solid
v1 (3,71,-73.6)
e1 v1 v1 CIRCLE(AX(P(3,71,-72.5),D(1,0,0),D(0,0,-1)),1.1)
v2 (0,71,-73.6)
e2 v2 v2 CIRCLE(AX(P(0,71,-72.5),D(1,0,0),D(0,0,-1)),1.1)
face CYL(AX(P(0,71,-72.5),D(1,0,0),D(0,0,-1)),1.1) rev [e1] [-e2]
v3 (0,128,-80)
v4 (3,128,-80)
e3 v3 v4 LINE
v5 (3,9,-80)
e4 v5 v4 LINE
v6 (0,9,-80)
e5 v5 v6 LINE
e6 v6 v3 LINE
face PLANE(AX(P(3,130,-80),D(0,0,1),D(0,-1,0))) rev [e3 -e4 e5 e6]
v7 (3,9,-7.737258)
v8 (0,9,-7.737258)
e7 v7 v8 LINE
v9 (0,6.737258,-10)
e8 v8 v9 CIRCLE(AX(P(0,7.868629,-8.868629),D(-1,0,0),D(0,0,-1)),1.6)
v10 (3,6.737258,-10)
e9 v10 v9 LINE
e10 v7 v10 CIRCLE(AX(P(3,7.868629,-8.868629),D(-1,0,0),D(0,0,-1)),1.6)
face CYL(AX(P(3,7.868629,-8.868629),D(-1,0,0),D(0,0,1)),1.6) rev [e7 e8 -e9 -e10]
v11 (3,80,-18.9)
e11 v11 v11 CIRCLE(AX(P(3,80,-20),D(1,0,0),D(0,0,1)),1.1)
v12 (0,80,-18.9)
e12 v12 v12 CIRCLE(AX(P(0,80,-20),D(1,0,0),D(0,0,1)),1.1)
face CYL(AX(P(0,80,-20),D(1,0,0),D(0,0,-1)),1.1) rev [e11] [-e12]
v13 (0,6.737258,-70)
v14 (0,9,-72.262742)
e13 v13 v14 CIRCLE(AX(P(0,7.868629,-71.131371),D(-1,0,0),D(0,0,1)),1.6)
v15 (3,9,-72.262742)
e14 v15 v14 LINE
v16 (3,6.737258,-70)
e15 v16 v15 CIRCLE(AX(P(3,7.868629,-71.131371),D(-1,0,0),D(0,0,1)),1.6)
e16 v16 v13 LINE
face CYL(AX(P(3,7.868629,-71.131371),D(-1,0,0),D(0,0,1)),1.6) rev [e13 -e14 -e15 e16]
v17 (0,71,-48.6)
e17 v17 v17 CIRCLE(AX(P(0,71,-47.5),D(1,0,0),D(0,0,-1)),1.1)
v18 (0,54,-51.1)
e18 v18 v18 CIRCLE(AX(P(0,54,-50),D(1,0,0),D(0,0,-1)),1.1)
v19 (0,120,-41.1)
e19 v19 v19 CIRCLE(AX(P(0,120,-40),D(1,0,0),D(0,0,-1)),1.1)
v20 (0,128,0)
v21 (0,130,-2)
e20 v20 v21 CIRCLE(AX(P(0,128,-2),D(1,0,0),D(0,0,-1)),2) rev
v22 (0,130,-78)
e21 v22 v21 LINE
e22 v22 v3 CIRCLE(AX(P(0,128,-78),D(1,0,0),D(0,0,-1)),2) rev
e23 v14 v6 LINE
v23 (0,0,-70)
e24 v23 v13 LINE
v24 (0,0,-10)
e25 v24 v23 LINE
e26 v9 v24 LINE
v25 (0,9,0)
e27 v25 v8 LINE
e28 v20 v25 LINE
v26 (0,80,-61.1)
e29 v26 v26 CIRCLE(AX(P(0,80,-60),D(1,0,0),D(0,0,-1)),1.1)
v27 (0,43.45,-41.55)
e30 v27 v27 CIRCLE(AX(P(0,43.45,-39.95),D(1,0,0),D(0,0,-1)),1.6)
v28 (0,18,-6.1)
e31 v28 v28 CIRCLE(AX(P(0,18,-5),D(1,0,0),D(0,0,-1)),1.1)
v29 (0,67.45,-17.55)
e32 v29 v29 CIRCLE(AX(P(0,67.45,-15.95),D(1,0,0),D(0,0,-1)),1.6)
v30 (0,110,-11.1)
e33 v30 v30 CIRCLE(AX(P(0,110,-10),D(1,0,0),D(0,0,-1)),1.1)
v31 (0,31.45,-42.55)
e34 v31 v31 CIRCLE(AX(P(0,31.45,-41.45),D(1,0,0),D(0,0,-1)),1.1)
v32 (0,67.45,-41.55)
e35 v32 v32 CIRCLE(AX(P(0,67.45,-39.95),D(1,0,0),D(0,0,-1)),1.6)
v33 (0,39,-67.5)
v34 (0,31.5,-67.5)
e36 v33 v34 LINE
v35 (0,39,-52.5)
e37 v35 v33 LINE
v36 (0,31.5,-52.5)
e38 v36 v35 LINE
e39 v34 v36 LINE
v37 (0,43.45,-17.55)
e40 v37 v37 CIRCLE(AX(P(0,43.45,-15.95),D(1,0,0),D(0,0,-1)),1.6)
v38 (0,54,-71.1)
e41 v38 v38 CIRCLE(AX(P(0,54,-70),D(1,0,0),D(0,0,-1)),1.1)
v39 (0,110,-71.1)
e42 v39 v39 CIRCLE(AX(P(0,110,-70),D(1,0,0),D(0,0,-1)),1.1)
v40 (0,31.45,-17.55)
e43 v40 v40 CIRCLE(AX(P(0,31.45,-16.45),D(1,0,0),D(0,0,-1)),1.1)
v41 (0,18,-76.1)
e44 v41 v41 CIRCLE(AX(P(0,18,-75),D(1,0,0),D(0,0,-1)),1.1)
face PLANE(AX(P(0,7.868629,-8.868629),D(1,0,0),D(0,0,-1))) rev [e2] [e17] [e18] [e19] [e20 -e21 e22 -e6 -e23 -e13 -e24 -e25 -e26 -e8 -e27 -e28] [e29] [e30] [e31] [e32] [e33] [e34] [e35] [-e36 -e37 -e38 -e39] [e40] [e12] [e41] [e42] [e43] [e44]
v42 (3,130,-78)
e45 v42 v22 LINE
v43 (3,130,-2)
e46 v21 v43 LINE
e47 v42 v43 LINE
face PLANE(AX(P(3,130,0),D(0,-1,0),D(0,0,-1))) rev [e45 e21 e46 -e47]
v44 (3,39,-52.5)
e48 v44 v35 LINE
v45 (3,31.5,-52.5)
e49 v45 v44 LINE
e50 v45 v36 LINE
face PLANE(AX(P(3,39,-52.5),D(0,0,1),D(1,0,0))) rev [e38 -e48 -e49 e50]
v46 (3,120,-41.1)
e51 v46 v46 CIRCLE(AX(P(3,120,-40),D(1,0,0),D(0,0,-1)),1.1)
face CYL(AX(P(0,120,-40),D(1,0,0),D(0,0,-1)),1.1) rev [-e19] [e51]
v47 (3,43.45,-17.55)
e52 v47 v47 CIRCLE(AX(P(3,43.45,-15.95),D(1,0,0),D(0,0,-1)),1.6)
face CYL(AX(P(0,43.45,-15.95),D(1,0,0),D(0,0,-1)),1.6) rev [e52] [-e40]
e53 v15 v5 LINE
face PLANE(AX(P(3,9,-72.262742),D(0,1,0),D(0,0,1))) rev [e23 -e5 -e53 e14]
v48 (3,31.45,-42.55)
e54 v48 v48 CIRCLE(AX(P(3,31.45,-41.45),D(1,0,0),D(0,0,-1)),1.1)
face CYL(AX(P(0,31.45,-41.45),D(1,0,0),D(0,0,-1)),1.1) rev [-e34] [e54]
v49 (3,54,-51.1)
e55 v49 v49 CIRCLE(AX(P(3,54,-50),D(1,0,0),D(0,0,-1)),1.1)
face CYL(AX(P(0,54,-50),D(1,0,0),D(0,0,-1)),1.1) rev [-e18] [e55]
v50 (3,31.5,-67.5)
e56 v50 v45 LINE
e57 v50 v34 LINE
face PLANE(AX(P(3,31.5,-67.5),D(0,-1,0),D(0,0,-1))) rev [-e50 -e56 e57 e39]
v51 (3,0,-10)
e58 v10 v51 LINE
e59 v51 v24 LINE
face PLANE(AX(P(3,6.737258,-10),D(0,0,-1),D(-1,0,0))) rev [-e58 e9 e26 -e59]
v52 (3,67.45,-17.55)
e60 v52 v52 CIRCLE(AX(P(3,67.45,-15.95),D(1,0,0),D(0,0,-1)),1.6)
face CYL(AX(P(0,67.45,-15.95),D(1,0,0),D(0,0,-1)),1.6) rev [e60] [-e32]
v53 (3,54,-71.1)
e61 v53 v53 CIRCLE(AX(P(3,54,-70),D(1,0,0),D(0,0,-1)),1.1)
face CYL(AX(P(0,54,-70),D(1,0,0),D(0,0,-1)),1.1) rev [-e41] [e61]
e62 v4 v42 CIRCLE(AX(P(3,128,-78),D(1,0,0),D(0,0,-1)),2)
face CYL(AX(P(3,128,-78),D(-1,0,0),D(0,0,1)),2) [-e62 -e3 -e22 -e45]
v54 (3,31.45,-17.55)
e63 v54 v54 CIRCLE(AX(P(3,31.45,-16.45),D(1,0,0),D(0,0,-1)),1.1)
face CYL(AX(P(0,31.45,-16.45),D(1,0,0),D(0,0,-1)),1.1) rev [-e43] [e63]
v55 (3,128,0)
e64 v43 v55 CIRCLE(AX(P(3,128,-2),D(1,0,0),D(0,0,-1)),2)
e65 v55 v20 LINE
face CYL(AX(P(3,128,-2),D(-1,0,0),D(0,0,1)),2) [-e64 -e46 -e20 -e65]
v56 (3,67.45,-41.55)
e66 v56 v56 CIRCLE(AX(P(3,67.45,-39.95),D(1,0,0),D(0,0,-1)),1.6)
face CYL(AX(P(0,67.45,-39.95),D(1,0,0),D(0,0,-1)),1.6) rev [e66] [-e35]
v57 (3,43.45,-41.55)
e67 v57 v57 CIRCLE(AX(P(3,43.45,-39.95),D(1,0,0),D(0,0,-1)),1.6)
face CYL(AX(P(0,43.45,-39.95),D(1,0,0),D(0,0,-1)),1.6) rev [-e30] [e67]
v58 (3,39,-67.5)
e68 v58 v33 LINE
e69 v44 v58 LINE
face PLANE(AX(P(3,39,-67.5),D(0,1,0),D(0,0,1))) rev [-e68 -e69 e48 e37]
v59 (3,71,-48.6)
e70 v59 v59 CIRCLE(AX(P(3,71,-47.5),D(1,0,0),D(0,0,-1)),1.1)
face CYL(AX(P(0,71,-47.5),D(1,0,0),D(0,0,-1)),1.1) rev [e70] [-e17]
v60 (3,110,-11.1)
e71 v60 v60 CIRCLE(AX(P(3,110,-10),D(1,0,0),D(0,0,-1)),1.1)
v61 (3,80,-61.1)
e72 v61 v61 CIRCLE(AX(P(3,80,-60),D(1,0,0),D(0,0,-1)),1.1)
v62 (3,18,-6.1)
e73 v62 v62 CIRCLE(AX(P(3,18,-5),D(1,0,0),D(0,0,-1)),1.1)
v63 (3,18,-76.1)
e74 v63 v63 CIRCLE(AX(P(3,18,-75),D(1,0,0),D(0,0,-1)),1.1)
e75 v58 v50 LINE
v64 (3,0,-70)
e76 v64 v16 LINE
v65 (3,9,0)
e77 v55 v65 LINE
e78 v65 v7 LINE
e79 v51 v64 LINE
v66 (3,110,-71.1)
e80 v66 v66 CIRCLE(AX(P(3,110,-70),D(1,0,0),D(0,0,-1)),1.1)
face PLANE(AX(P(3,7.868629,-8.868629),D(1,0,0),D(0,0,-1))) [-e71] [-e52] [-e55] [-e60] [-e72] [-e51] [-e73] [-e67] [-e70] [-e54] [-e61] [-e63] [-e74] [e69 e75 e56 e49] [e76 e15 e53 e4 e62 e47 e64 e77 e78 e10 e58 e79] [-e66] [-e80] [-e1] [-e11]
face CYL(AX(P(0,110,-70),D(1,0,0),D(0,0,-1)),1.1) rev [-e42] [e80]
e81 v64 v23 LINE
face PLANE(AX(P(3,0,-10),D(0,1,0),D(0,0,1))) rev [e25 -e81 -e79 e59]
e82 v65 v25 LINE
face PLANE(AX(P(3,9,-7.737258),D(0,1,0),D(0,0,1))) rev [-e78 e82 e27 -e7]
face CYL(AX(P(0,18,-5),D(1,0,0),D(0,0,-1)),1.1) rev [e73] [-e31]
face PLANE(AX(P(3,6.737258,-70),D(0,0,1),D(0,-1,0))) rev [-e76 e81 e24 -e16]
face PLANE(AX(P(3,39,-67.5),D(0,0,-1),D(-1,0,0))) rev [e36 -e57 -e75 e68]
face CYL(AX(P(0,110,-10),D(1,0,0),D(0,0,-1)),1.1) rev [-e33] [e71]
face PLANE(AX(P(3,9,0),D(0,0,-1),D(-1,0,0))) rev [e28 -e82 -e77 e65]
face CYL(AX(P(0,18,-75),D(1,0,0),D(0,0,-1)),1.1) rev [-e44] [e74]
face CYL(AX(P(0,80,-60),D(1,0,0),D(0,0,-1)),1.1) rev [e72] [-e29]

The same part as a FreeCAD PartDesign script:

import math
import FreeCAD as App
import Part
import Sketcher

V = App.Vector


def edges_at(feature, points):
    """Names of the edges that pass closest to the given points."""
    edges = feature.Shape.Edges
    near = lambda p: min(range(len(edges)), key=lambda i: edges[i].distToShape(Part.Vertex(*p))[0])
    return sorted({f"Edge{near(p) + 1}" for p in points})

doc = App.newDocument("Part")
params = doc.addObject("Spreadsheet::Sheet", "Params")
for row, (alias, value) in enumerate([
    ("sketch1_radius", "1.6 mm"),
    ("sketch1_width", "121 mm"),
    ("sketch1_height", "60 mm"),
    ("sketch1_height2", "80 mm"),
    ("pad1_length", "3 mm"),
    ("sketch2_diameter", "2.2 mm"),
    ("sketch2_diameter2", "3.2 mm"),
    ("sketch3_height", "15 mm"),
    ("sketch3_width", "7.5 mm"),
    ("sketch4_diameter", "2.2 mm"),
    ("fillet_radius", "2 mm"),
    ("sketch5_diameter", "2.2 mm"),
], start=1):
    params.set(f"A{row}", alias)
    params.set(f"B{row}", "=" + value)
    params.setAlias(f"B{row}", alias)

body = doc.addObject("PartDesign::Body", "Body")

# Sketch on YZ plane
sketch1 = body.newObject("Sketcher::SketchObject", "Sketch")
sketch1.AttachmentSupport = (doc.getObject("YZ_Plane"), [""])
sketch1.MapMode = "FlatFace"
sketch1.addGeometry([
    Part.LineSegment(V(6.7, -10, 0), V(0, -10, 0)),  # 0
    Part.LineSegment(V(0, -10, 0), V(0, -70, 0)),  # 1
    Part.LineSegment(V(0, -70, 0), V(6.7, -70, 0)),  # 2
    Part.ArcOfCircle(Part.Circle(V(7.9, -71.1, 0), V(0, 0, 1), 1.6), math.radians(-45), math.radians(135)),  # 3
    Part.LineSegment(V(9, -72.3, 0), V(9, -80, 0)),  # 4
    Part.LineSegment(V(9, -80, 0), V(130, -80, 0)),  # 5
    Part.LineSegment(V(130, -80, 0), V(130, 0, 0)),  # 6
    Part.LineSegment(V(130, 0, 0), V(9, 0, 0)),  # 7
    Part.LineSegment(V(9, 0, 0), V(9, -7.7, 0)),  # 8
    Part.ArcOfCircle(Part.Circle(V(7.9, -8.9, 0), V(0, 0, 1), 1.6), math.radians(-135), math.radians(45)),  # 9
], False)
sketch1.addConstraint([
    Sketcher.Constraint("Coincident", 0, 2, 1, 1),
    Sketcher.Constraint("Coincident", 1, 2, 2, 1),
    Sketcher.Constraint("Coincident", 2, 2, 3, 2),
    Sketcher.Constraint("Coincident", 3, 1, 4, 1),
    Sketcher.Constraint("Coincident", 4, 2, 5, 1),
    Sketcher.Constraint("Coincident", 5, 2, 6, 1),
    Sketcher.Constraint("Coincident", 6, 2, 7, 1),
    Sketcher.Constraint("Coincident", 7, 2, 8, 1),
    Sketcher.Constraint("Coincident", 8, 2, 9, 2),
    Sketcher.Constraint("Coincident", 9, 1, 0, 1),
    Sketcher.Constraint("Horizontal", 0),
    Sketcher.Constraint("Vertical", 1),
    Sketcher.Constraint("Horizontal", 2),
    Sketcher.Constraint("Vertical", 4),
    Sketcher.Constraint("Horizontal", 5),
    Sketcher.Constraint("Vertical", 6),
    Sketcher.Constraint("Horizontal", 7),
    Sketcher.Constraint("Vertical", 8),
    Sketcher.Constraint("Equal", 3, 9),
    Sketcher.Constraint("PointOnObject", 0, 2, -2),
    Sketcher.Constraint("PointOnObject", 6, 2, -1),
    Sketcher.Constraint("Vertical", 3, 3, 9, 3),
    Sketcher.Constraint("Vertical", 4, 2, 7, 2),
    Sketcher.Constraint("Vertical", 2, 2, 9, 1),
    Sketcher.Constraint("Equal", 4, 8),
    Sketcher.Constraint("Radius", 3, 1.6),
    Sketcher.Constraint("DistanceX", 5, 1, 5, 2, 121.0),
    Sketcher.Constraint("DistanceY", 1, 2, 1, 1, 60.0),
    Sketcher.Constraint("DistanceY", 6, 1, 6, 2, 80.0),
    Sketcher.Constraint("DistanceX", -1, 1, 3, 1, 9.0),
    Sketcher.Constraint("DistanceX", 0, 2, 0, 1, 6.737258),
    Sketcher.Constraint("DistanceX", -1, 1, 3, 3, 7.868629),
])
sketch1.setExpression("Constraints[25]", "Params.sketch1_radius")
sketch1.setExpression("Constraints[26]", "Params.sketch1_width")
sketch1.setExpression("Constraints[27]", "Params.sketch1_height")
sketch1.setExpression("Constraints[28]", "Params.sketch1_height2")
pad1 = body.newObject("PartDesign::Pad", "Pad")
pad1.Profile = sketch1
pad1.setExpression("Length", "Params.pad1_length")

# Sketch on YZ plane
sketch2 = body.newObject("Sketcher::SketchObject", "Sketch001")
sketch2.AttachmentSupport = (doc.getObject("YZ_Plane"), [""])
sketch2.MapMode = "FlatFace"
sketch2.AttachmentOffset = App.Placement(V(0, 0, 3), App.Rotation())
sketch2.addGeometry([
    Part.Circle(V(80, -60, 0), V(0, 0, 1), 1.1),  # 0
    Part.Circle(V(110, -10, 0), V(0, 0, 1), 1.1),  # 1
    Part.Circle(V(80, -20, 0), V(0, 0, 1), 1.1),  # 2
    Part.Circle(V(110, -70, 0), V(0, 0, 1), 1.1),  # 3
    Part.Circle(V(67.5, -15.9, 0), V(0, 0, 1), 1.6),  # 4
    Part.Circle(V(43.5, -15.9, 0), V(0, 0, 1), 1.6),  # 5
    Part.Circle(V(43.5, -40, 0), V(0, 0, 1), 1.6),  # 6
    Part.Circle(V(67.5, -40, 0), V(0, 0, 1), 1.6),  # 7
    Part.Circle(V(120, -40, 0), V(0, 0, 1), 1.1),  # 8
    Part.Circle(V(54, -70, 0), V(0, 0, 1), 1.1),  # 9
    Part.Circle(V(54, -50, 0), V(0, 0, 1), 1.1),  # 10
], False)
sketch2.addConstraint([
    Sketcher.Constraint("Equal", 0, 1),
    Sketcher.Constraint("Equal", 1, 2),
    Sketcher.Constraint("Equal", 2, 3),
    Sketcher.Constraint("Equal", 4, 5),
    Sketcher.Constraint("Equal", 5, 6),
    Sketcher.Constraint("Equal", 6, 7),
    Sketcher.Constraint("Equal", 3, 8),
    Sketcher.Constraint("Equal", 8, 9),
    Sketcher.Constraint("Equal", 9, 10),
    Sketcher.Constraint("Horizontal", 4, 3, 5, 3),
    Sketcher.Constraint("Horizontal", 6, 3, 7, 3),
    Sketcher.Constraint("Horizontal", 3, 3, 9, 3),
    Sketcher.Constraint("Vertical", 0, 3, 2, 3),
    Sketcher.Constraint("Vertical", 1, 3, 3, 3),
    Sketcher.Constraint("Vertical", 5, 3, 6, 3),
    Sketcher.Constraint("Vertical", 4, 3, 7, 3),
    Sketcher.Constraint("Vertical", 9, 3, 10, 3),
    Sketcher.Constraint("Diameter", 0, 2.2),
    Sketcher.Constraint("Diameter", 4, 3.2),
    Sketcher.Constraint("DistanceX", -1, 1, 0, 3, 80.0),
    Sketcher.Constraint("DistanceY", 0, 3, -1, 1, 60.0),
    Sketcher.Constraint("DistanceX", -1, 1, 1, 3, 110.0),
    Sketcher.Constraint("DistanceY", 1, 3, -1, 1, 10.0),
    Sketcher.Constraint("DistanceY", 2, 3, -1, 1, 20.0),
    Sketcher.Constraint("DistanceY", 3, 3, -1, 1, 70.0),
    Sketcher.Constraint("DistanceX", -1, 1, 8, 3, 120.0),
    Sketcher.Constraint("DistanceY", 8, 3, -1, 1, 40.0),
    Sketcher.Constraint("DistanceX", -1, 1, 9, 3, 54.0),
    Sketcher.Constraint("DistanceY", 10, 3, -1, 1, 50.0),
    Sketcher.Constraint("DistanceX", 5, 3, 4, 3, 24.0),
    Sketcher.Constraint("DistanceY", 6, 3, 5, 3, 24.0),
    Sketcher.Constraint("DistanceX", -1, 1, 4, 3, 67.45),
    Sketcher.Constraint("DistanceY", 4, 3, -1, 1, 15.95),
])
sketch2.setExpression("Constraints[17]", "Params.sketch2_diameter")
sketch2.setExpression("Constraints[18]", "Params.sketch2_diameter2")
pocket1 = body.newObject("PartDesign::Pocket", "Pocket")
pocket1.Profile = sketch2
pocket1.Type = "ThroughAll"

# Sketch on YZ plane
sketch3 = body.newObject("Sketcher::SketchObject", "Sketch002")
sketch3.AttachmentSupport = (doc.getObject("YZ_Plane"), [""])
sketch3.MapMode = "FlatFace"
sketch3.addGeometry([
    Part.LineSegment(V(39, -68, 0), V(32, -68, 0)),
    Part.LineSegment(V(32, -68, 0), V(32, -52, 0)),
    Part.LineSegment(V(32, -52, 0), V(39, -52, 0)),
    Part.LineSegment(V(39, -52, 0), V(39, -68, 0)),
], False)
sketch3.addConstraint([
    Sketcher.Constraint("Coincident", 0, 2, 1, 1),
    Sketcher.Constraint("Coincident", 1, 2, 2, 1),
    Sketcher.Constraint("Coincident", 2, 2, 3, 1),
    Sketcher.Constraint("Coincident", 3, 2, 0, 1),
    Sketcher.Constraint("Horizontal", 0),
    Sketcher.Constraint("Vertical", 1),
    Sketcher.Constraint("Horizontal", 2),
    Sketcher.Constraint("Vertical", 3),
    Sketcher.Constraint("DistanceY", 1, 1, 1, 2, 15.0),
    Sketcher.Constraint("DistanceX", 0, 2, 0, 1, 7.5),
    Sketcher.Constraint("DistanceX", -1, 1, 2, 2, 39.0),
    Sketcher.Constraint("DistanceY", 0, 2, -1, 1, 67.5),
])
sketch3.setExpression("Constraints[8]", "Params.sketch3_height")
sketch3.setExpression("Constraints[9]", "Params.sketch3_width")
pocket2 = body.newObject("PartDesign::Pocket", "Pocket001")
pocket2.Profile = sketch3
pocket2.Type = "ThroughAll"
pocket2.Reversed = True

# Sketch on YZ plane
sketch4 = body.newObject("Sketcher::SketchObject", "Sketch003")
sketch4.AttachmentSupport = (doc.getObject("YZ_Plane"), [""])
sketch4.MapMode = "FlatFace"
sketch4.AttachmentOffset = App.Placement(V(0, 0, 3), App.Rotation())
sketch4.addGeometry([
    Part.Circle(V(18, -75, 0), V(0, 0, 1), 1.1),
    Part.Circle(V(18, -5, 0), V(0, 0, 1), 1.1),
], False)
sketch4.addConstraint([
    Sketcher.Constraint("Equal", 0, 1),
    Sketcher.Constraint("Vertical", 0, 3, 1, 3),
    Sketcher.Constraint("Diameter", 0, 2.2),
    Sketcher.Constraint("DistanceX", -1, 1, 0, 3, 18.0),
    Sketcher.Constraint("DistanceY", 0, 3, -1, 1, 75.0),
    Sketcher.Constraint("DistanceY", 1, 3, -1, 1, 5.0),
])
sketch4.setExpression("Constraints[2]", "Params.sketch4_diameter")
pocket3 = body.newObject("PartDesign::Pocket", "Pocket002")
pocket3.Profile = sketch4
pocket3.Type = "ThroughAll"
doc.recompute()

fillet = body.newObject("PartDesign::Fillet", "Fillet")
fillet.Base = (pocket3, edges_at(pocket3, [(1.5, 130, 0), (1.5, 130, -80)]))
fillet.setExpression("Radius", "Params.fillet_radius")

# Sketch on YZ plane
sketch5 = body.newObject("Sketcher::SketchObject", "Sketch004")
sketch5.AttachmentSupport = (doc.getObject("YZ_Plane"), [""])
sketch5.MapMode = "FlatFace"
sketch5.AttachmentOffset = App.Placement(V(0, 0, 3), App.Rotation())
sketch5.addGeometry([
    Part.Circle(V(31.4, -16.4, 0), V(0, 0, 1), 1.1),
    Part.Circle(V(31.4, -41.5, 0), V(0, 0, 1), 1.1),
    Part.Circle(V(71, -47.5, 0), V(0, 0, 1), 1.1),
    Part.Circle(V(71, -72.5, 0), V(0, 0, 1), 1.1),
], False)
sketch5.addConstraint([
    Sketcher.Constraint("Equal", 0, 1),
    Sketcher.Constraint("Equal", 1, 2),
    Sketcher.Constraint("Equal", 2, 3),
    Sketcher.Constraint("Vertical", 0, 3, 1, 3),
    Sketcher.Constraint("Vertical", 2, 3, 3, 3),
    Sketcher.Constraint("Diameter", 0, 2.2),
    Sketcher.Constraint("DistanceX", -1, 1, 2, 3, 71.0),
    Sketcher.Constraint("DistanceY", 1, 3, 0, 3, 25.0),
    Sketcher.Constraint("DistanceY", 3, 3, 2, 3, 25.0),
    Sketcher.Constraint("DistanceY", 2, 3, -1, 1, 47.5),
    Sketcher.Constraint("DistanceX", -1, 1, 0, 3, 31.45),
    Sketcher.Constraint("DistanceY", 0, 3, -1, 1, 16.45),
])
sketch5.setExpression("Constraints[5]", "Params.sketch5_diameter")
pocket4 = body.newObject("PartDesign::Pocket", "Pocket003")
pocket4.Profile = sketch5
pocket4.Type = "ThroughAll"

doc.recompute()
